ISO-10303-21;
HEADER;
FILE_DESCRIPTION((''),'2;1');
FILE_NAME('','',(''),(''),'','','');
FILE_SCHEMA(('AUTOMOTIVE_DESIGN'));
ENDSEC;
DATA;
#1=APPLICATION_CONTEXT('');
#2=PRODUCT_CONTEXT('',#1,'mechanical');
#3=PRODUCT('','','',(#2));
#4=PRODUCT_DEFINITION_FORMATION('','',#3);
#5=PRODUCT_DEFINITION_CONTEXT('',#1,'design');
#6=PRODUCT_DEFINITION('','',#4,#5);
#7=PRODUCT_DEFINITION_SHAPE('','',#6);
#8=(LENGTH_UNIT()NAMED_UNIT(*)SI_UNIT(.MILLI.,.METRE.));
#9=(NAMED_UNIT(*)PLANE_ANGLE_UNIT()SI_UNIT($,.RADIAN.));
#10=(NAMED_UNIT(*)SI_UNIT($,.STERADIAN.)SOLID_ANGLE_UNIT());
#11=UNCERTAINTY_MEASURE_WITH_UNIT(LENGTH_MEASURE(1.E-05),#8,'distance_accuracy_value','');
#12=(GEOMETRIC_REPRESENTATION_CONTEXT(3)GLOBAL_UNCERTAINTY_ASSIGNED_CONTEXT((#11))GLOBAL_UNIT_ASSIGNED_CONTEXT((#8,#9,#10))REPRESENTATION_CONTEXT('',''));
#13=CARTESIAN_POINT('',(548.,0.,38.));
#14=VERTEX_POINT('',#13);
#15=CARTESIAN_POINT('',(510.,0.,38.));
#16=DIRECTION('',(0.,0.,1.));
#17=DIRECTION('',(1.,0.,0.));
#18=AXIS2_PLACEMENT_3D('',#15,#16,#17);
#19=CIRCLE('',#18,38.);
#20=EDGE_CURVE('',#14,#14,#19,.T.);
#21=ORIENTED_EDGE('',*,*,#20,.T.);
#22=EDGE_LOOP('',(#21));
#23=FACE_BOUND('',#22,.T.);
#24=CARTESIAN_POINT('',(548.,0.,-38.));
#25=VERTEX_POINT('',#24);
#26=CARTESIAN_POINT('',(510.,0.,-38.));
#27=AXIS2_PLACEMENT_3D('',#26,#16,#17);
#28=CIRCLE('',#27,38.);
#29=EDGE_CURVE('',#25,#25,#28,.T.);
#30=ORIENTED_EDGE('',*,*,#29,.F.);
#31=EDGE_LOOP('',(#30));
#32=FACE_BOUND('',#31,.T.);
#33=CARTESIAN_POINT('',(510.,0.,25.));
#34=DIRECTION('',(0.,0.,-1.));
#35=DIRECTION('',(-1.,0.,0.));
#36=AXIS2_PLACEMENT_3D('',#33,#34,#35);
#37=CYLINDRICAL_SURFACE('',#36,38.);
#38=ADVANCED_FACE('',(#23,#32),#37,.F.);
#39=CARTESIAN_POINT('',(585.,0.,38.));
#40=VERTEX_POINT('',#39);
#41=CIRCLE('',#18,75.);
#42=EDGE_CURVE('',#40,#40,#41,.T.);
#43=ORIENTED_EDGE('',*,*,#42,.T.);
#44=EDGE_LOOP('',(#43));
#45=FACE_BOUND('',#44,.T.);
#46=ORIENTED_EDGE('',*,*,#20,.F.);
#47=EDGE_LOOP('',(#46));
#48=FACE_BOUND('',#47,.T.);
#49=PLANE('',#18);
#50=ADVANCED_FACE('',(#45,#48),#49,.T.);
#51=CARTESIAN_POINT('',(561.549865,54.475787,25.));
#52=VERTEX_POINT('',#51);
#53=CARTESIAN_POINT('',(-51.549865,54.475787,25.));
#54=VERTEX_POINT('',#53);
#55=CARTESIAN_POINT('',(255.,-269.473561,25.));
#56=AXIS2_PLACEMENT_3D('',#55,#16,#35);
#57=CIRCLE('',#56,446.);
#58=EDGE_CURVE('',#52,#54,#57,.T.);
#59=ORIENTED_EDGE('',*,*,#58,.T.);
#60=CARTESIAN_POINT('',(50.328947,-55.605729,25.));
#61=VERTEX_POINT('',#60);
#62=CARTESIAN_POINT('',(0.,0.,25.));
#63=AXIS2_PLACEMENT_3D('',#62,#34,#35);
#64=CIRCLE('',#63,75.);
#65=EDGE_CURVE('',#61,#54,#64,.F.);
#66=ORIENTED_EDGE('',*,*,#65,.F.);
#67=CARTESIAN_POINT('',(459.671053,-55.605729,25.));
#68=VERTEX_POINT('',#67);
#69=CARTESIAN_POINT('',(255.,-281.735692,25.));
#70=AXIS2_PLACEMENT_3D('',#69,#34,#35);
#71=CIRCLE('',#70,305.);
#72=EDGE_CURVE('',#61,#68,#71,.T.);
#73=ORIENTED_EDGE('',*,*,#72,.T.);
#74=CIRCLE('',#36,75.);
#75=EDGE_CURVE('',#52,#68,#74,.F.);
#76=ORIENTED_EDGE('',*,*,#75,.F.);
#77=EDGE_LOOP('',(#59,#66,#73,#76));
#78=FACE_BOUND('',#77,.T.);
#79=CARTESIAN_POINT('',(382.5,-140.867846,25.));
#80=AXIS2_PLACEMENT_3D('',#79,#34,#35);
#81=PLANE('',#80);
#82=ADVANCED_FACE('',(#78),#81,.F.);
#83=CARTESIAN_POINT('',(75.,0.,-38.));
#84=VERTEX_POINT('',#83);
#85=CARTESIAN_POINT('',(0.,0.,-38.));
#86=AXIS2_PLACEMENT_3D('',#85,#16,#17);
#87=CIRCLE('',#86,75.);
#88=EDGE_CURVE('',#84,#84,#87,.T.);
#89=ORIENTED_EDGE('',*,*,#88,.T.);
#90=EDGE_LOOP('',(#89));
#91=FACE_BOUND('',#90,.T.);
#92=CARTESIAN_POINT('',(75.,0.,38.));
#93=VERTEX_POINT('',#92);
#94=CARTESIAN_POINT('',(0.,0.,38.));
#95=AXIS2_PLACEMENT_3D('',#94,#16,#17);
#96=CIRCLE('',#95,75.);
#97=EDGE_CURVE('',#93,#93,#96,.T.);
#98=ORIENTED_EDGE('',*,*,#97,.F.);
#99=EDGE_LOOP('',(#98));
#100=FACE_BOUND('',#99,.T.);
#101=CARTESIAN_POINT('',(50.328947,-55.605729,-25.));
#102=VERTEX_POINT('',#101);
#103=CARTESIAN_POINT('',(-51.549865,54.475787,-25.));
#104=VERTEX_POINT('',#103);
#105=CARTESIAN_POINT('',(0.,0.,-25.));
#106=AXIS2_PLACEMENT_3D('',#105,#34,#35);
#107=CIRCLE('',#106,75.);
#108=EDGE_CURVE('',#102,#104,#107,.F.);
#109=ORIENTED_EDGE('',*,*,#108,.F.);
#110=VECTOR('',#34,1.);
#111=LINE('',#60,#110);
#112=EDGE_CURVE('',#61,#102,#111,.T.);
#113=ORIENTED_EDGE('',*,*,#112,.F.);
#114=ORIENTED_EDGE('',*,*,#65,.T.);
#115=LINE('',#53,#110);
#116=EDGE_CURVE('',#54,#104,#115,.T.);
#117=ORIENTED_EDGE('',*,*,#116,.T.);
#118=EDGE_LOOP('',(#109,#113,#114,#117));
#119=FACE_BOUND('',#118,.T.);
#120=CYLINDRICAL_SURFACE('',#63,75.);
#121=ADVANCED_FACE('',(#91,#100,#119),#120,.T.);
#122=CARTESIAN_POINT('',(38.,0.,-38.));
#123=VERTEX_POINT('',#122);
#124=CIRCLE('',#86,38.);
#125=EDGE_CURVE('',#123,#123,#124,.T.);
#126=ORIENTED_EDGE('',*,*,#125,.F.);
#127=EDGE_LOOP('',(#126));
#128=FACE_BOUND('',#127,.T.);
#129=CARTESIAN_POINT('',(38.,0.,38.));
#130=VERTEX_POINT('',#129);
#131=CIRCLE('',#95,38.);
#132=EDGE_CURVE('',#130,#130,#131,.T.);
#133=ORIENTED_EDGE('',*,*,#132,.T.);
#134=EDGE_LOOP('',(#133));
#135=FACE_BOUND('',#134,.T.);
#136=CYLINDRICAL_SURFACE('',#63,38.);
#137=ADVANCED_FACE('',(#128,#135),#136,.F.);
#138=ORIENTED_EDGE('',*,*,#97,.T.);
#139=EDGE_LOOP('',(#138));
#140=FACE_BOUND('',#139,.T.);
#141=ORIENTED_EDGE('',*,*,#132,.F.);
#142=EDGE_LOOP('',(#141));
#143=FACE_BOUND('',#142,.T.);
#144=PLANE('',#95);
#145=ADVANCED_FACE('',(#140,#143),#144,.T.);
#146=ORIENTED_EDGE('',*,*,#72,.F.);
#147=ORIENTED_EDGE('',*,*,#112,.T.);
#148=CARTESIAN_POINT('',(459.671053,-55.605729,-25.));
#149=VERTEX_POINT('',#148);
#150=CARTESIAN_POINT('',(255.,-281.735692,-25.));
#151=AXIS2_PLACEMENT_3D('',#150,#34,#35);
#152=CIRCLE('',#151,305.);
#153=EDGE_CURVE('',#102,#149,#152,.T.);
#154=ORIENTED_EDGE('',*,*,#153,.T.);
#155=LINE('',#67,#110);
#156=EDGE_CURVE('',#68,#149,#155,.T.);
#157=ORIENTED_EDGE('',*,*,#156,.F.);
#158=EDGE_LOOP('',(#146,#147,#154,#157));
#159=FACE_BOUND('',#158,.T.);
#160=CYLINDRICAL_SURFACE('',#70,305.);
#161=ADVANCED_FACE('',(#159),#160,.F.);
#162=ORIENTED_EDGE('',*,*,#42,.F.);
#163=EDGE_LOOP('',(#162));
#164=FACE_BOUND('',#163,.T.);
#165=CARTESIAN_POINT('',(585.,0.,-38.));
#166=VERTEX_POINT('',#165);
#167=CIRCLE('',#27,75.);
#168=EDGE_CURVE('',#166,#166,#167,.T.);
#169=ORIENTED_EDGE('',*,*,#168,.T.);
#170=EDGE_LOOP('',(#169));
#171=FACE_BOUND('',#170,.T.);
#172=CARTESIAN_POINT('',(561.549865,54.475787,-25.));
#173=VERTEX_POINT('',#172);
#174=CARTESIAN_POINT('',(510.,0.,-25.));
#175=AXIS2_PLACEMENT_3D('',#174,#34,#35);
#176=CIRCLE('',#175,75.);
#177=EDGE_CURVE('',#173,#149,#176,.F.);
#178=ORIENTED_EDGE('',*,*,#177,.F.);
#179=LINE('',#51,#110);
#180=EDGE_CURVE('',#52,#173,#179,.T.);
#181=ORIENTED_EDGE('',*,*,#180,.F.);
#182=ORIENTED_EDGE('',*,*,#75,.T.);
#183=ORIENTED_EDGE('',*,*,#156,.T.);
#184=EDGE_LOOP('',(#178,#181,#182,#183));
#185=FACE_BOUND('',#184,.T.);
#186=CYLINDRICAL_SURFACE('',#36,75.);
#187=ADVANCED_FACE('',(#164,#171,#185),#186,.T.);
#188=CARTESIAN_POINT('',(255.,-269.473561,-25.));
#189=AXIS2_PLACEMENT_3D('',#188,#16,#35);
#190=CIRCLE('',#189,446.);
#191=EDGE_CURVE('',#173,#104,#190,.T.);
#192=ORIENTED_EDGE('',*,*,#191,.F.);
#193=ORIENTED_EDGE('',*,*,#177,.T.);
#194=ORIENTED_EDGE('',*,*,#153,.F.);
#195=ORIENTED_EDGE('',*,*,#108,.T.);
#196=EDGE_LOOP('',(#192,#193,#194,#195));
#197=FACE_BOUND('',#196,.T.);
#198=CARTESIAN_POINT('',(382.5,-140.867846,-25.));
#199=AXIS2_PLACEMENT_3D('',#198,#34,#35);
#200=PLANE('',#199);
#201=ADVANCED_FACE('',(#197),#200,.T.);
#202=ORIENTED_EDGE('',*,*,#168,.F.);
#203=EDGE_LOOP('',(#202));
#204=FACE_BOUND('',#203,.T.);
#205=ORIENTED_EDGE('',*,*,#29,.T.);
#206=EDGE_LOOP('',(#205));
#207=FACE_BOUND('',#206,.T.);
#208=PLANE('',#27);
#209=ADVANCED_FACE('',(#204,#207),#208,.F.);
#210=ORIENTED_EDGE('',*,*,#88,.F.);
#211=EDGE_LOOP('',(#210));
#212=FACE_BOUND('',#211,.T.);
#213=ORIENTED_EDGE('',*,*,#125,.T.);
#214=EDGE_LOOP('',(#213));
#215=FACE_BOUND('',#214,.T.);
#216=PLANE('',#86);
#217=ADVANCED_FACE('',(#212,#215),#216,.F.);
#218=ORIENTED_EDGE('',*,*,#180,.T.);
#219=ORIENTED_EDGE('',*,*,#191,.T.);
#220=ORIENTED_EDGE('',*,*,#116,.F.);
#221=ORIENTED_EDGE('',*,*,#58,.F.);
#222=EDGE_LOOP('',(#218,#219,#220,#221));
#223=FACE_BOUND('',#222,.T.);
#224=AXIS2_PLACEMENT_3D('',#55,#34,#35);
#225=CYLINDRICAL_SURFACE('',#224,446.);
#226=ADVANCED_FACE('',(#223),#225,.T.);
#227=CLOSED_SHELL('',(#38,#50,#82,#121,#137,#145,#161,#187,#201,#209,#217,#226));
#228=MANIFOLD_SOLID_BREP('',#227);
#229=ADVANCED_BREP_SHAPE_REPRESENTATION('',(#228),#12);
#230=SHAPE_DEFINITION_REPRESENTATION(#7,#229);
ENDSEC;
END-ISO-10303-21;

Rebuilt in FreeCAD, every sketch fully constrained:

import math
import FreeCAD as App
import Part
import Sketcher
from FreeCAD import Vector

doc = App.newDocument("Part")
body = doc.addObject("PartDesign::Body", "Body")

sketch1 = body.newObject("Sketcher::SketchObject", "Sketch")
sketch1.AttachmentSupport = (doc.getObject("XY_Plane"), [""])
sketch1.MapMode = "FlatFace"
sketch1.addGeometry(Part.ArcOfCircle(Part.Circle(Vector(0, 0, 0), Vector(0, 0, 1), 75), math.radians(133.419246), math.radians(312.148359)), False)
sketch1.addGeometry(Part.ArcOfCircle(Part.Circle(Vector(255, -281.735692, 0), Vector(0, 0, 1), 305), math.radians(47.851641), math.radians(132.148359)), False)
sketch1.addGeometry(Part.ArcOfCircle(Part.Circle(Vector(510, 0, 0), Vector(0, 0, 1), 75), math.radians(-132.148359), math.radians(46.580754)), False)
sketch1.addGeometry(Part.ArcOfCircle(Part.Circle(Vector(255, -269.473561, 0), Vector(0, 0, 1), 446), math.radians(46.580754), math.radians(133.419246)), False)
sketch1.addGeometry(Part.Circle(Vector(0, 0, 0), Vector(0, 0, 1), 38), False)
sketch1.addGeometry(Part.Circle(Vector(510, 0, 0), Vector(0, 0, 1), 38), False)
sketch1.addConstraint(Sketcher.Constraint("Tangent", 0, 2, 1, 2))
sketch1.addConstraint(Sketcher.Constraint("Tangent", 1, 1, 2, 1))
sketch1.addConstraint(Sketcher.Constraint("Tangent", 2, 2, 3, 1))
sketch1.addConstraint(Sketcher.Constraint("Tangent", 3, 2, 0, 1))
sketch1.addConstraint(Sketcher.Constraint("Coincident", 0, 3, -1, 1))
sketch1.addConstraint(Sketcher.Constraint("Coincident", 4, 3, -1, 1))
sketch1.addConstraint(Sketcher.Constraint("Coincident", 5, 3, 2, 3))
sketch1.addConstraint(Sketcher.Constraint("Equal", 0, 2))
sketch1.addConstraint(Sketcher.Constraint("Equal", 4, 5))
sketch1.addConstraint(Sketcher.Constraint("PointOnObject", 2, 3, -1))
sketch1.addConstraint(Sketcher.Constraint("Diameter", 4, 76.0))
sketch1.addConstraint(Sketcher.Constraint("Radius", 0, 75.0))
sketch1.addConstraint(Sketcher.Constraint("Radius", 1, 305.0))
sketch1.addConstraint(Sketcher.Constraint("Radius", 3, 446.0))
sketch1.addConstraint(Sketcher.Constraint("DistanceX", -1, 1, 1, 3, 255.0))
pad1 = body.newObject("PartDesign::Pad", "Pad")
pad1.Profile = sketch1
pad1.Length = 50
pad1.Midplane = True

sketch2 = body.newObject("Sketcher::SketchObject", "Sketch001")
sketch2.AttachmentSupport = (doc.getObject("XY_Plane"), [""])
sketch2.MapMode = "FlatFace"
sketch2.addGeometry(Part.Circle(Vector(0, 0, 0), Vector(0, 0, 1), 75), False)
sketch2.addGeometry(Part.Circle(Vector(0, 0, 0), Vector(0, 0, 1), 38), False)
sketch2.addGeometry(Part.Circle(Vector(510, 0, 0), Vector(0, 0, 1), 75), False)
sketch2.addGeometry(Part.Circle(Vector(510, 0, 0), Vector(0, 0, 1), 38), False)
sketch2.addConstraint(Sketcher.Constraint("Coincident", 0, 3, -1, 1))
sketch2.addConstraint(Sketcher.Constraint("Coincident", 1, 3, -1, 1))
sketch2.addConstraint(Sketcher.Constraint("Coincident", 3, 3, 2, 3))
sketch2.addConstraint(Sketcher.Constraint("Equal", 0, 2))
sketch2.addConstraint(Sketcher.Constraint("Equal", 1, 3))
sketch2.addConstraint(Sketcher.Constraint("PointOnObject", 2, 3, -1))
sketch2.addConstraint(Sketcher.Constraint("Diameter", 0, 150.0))
sketch2.addConstraint(Sketcher.Constraint("Diameter", 1, 76.0))
sketch2.addConstraint(Sketcher.Constraint("DistanceX", -1, 1, 2, 3, 510.0))
pad2 = body.newObject("PartDesign::Pad", "Pad001")
pad2.Profile = sketch2
pad2.Length = 76
pad2.Midplane = True

doc.recompute()
